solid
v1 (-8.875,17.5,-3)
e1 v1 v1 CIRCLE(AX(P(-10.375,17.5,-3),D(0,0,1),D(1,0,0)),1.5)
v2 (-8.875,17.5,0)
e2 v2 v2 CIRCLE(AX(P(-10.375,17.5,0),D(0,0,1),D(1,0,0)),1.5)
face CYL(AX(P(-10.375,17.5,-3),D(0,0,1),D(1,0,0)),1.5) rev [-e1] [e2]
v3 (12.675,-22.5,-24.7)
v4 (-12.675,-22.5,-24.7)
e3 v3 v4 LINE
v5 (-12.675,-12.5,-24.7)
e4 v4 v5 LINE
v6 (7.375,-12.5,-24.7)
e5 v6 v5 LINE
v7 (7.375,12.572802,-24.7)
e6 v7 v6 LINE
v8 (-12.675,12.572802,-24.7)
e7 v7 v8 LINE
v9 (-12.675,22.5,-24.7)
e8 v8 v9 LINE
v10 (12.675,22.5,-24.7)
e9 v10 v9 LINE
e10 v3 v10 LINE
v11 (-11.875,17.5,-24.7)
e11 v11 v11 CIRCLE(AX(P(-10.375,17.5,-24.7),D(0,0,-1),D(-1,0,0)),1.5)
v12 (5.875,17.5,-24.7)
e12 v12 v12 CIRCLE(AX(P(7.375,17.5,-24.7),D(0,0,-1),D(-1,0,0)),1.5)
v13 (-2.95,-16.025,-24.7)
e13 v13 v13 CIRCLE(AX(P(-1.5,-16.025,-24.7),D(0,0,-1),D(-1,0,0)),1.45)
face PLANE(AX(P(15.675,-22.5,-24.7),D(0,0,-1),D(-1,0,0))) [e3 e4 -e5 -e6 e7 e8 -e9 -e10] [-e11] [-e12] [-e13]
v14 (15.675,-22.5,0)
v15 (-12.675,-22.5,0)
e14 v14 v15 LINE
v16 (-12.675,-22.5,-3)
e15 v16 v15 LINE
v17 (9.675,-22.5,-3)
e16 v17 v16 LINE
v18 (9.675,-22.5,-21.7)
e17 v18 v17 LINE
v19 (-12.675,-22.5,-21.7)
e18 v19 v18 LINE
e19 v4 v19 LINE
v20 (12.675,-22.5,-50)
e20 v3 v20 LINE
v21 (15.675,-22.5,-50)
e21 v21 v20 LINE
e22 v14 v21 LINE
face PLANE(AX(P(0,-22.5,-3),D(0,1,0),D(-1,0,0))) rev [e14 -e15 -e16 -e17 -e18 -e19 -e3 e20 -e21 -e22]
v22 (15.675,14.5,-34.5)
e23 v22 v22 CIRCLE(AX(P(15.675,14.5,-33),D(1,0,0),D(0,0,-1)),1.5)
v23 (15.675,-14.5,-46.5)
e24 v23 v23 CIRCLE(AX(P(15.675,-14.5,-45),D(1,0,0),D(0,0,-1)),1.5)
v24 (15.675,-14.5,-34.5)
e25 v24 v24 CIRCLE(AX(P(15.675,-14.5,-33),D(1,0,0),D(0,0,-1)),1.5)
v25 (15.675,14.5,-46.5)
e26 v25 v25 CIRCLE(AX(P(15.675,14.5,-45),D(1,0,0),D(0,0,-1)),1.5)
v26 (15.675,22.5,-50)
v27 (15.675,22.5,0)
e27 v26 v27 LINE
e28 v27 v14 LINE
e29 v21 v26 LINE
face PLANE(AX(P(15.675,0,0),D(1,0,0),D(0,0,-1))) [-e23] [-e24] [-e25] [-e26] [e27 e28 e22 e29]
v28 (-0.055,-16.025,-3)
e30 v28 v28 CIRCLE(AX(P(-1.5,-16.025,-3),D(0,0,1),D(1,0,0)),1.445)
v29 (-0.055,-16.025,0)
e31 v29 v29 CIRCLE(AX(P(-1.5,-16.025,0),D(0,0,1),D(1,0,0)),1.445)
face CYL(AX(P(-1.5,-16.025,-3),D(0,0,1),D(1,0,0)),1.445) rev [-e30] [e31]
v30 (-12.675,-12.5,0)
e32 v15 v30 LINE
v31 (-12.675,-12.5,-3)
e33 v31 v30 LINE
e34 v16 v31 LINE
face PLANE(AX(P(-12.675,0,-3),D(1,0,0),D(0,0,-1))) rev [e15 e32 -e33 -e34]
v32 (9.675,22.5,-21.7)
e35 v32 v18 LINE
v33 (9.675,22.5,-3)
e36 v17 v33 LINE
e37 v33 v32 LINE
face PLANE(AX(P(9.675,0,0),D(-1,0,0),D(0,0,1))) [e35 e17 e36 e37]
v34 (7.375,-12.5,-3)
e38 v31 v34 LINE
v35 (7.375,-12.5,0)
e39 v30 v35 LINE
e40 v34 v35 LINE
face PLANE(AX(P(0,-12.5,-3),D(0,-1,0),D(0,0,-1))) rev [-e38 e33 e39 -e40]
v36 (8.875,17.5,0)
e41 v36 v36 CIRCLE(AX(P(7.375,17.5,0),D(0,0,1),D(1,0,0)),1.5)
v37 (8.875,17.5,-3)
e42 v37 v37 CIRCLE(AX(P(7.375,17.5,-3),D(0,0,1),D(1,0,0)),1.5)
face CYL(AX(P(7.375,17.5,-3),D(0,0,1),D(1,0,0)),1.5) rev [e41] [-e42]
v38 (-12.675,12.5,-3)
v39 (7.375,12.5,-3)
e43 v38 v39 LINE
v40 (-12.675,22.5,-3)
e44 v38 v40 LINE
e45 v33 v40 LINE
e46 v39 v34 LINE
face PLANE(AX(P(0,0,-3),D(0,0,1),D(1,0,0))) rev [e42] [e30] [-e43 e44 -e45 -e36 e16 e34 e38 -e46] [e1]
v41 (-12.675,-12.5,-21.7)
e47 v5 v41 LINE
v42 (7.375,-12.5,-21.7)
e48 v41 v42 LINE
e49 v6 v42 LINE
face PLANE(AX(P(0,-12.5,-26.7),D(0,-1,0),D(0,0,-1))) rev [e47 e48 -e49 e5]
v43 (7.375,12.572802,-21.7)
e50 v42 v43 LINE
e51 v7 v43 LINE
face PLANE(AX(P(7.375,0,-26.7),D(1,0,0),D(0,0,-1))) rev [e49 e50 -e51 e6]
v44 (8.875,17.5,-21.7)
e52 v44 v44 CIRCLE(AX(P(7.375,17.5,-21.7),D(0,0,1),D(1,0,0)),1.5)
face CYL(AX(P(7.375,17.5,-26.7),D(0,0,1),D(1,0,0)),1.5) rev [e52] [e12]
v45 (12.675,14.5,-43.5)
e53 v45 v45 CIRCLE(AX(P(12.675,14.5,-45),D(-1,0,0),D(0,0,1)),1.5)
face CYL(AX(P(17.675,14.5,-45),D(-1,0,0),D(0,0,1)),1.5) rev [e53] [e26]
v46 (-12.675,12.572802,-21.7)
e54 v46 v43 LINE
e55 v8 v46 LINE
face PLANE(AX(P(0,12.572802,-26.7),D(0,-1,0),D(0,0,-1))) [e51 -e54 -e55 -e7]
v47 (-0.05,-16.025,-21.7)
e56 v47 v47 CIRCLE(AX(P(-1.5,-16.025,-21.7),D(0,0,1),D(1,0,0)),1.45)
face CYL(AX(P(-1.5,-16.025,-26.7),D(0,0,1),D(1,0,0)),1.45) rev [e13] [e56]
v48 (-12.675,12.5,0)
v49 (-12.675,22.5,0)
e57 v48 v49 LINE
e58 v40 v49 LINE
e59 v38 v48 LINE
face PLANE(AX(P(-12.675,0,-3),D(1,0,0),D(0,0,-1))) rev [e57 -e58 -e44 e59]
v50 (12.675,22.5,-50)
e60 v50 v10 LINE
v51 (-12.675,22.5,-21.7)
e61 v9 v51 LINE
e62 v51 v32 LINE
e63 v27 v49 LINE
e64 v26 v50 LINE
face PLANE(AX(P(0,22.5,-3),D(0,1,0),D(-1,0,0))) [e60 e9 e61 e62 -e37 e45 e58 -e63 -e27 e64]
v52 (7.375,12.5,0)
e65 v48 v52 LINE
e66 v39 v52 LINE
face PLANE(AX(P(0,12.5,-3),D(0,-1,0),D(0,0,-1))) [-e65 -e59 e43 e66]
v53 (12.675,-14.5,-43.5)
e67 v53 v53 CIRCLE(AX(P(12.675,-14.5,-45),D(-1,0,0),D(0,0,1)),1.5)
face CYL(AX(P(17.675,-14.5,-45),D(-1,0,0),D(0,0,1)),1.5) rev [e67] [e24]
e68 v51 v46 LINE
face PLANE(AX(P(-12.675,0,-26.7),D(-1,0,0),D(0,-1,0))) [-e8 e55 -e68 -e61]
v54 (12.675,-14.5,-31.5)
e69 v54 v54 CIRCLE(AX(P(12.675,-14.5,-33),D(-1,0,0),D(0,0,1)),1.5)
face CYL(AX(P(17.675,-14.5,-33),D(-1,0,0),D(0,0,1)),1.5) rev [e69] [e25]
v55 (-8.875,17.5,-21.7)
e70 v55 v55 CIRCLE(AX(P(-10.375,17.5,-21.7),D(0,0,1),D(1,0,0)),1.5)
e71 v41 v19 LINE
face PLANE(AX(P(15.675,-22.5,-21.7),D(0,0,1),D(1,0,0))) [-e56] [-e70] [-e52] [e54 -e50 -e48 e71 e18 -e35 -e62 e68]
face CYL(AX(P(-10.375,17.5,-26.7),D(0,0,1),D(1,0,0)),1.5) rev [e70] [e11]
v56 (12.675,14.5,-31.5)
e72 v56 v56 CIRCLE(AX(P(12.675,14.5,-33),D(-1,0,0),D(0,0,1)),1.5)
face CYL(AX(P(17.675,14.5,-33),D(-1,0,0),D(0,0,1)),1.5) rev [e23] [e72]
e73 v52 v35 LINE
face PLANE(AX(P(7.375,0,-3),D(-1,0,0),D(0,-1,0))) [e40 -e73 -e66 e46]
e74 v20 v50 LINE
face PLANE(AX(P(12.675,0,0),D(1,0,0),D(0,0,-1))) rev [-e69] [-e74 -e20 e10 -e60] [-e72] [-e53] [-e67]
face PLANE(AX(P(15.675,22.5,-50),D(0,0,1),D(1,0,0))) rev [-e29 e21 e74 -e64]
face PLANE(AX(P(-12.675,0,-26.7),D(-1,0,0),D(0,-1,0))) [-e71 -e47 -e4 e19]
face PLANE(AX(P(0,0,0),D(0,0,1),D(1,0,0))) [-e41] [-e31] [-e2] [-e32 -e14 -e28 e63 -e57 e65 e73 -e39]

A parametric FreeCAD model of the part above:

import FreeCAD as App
import Part
import Sketcher

V = App.Vector
Q = App.Units.Quantity


def add_polygon(sketch, points):
    """Adds a closed chain of lines whose ends are joined by coincident constraints."""
    first, n = sketch.GeometryCount, len(points)
    for a, b in zip(points, points[1:] + points[:1]):
        sketch.addGeometry(Part.LineSegment(App.Vector(*a, 0), App.Vector(*b, 0)), False)
    for i in range(n):
        sketch.addConstraint(Sketcher.Constraint("Coincident", first + i, 2, first + (i + 1) % n, 1))

doc = App.newDocument("Part")
body = doc.addObject("PartDesign::Body", "Body")

sketch1 = doc.addObject("Sketcher::SketchObject", "Sketch")
body.addObject(sketch1)
sketch1.AttachmentSupport = (doc.XY_Plane, [""])
sketch1.MapMode = "FlatFace"
add_polygon(sketch1, [(7.4, 12.5), (7.4, -12.5), (-12.7, -12.5), (-12.7, -22.5), (12.7, -22.5), (12.7, 22.5), (-12.7, 22.5), (-12.7, 12.5)])
sketch1.addGeometry(Part.Circle(V(-1.5, -16, 0), V(0, 0, 1), 1.4), False)
sketch1.addGeometry(Part.Circle(V(7.4, 17.5, 0), V(0, 0, 1), 1.5), False)
sketch1.addGeometry(Part.Circle(V(-10.4, 17.5, 0), V(0, 0, 1), 1.5), False)
sketch1.addConstraint([
    Sketcher.Constraint("Vertical", 0),
    Sketcher.Constraint("Horizontal", 1),
    Sketcher.Constraint("Vertical", 2),
    Sketcher.Constraint("Horizontal", 3),
    Sketcher.Constraint("Vertical", 4),
    Sketcher.Constraint("Horizontal", 5),
    Sketcher.Constraint("Vertical", 6),
    Sketcher.Constraint("Horizontal", 7),
    Sketcher.Constraint("Equal", 9, 10),
    Sketcher.Constraint("Symmetric", 2, 2, 4, 2, -1, 1),
    Sketcher.Constraint("Symmetric", 1, 2, 6, 2, -1),
    Sketcher.Constraint("Horizontal", 9, 3, 10, 3),
    Sketcher.Constraint("Vertical", 9, 3, 0, 2),
    Sketcher.Constraint("Diameter", 9, Q("3 mm")),
    Sketcher.Constraint("Diameter", 8, Q("2.89 mm")),
    Sketcher.Constraint("DistanceY", 0, 2, 0, 1, Q("25 mm")),
    Sketcher.Constraint("DistanceY", 2, 2, 2, 1, Q("10 mm")),
    Sketcher.Constraint("DistanceY", 0, 2, 9, 3, Q("30 mm")),
    Sketcher.Constraint("DistanceX", 1, 2, 1, 1, Q("20.05 mm")),
    Sketcher.Constraint("DistanceX", 3, 1, 3, 2, Q("25.35 mm")),
    Sketcher.Constraint("DistanceX", 8, 3, -1, 1, Q("1.5 mm")),
    Sketcher.Constraint("DistanceX", 1, 2, 10, 3, Q("2.3 mm")),
    Sketcher.Constraint("DistanceY", 8, 3, -1, 1, Q("16.025 mm")),
])
pad1 = doc.addObject("PartDesign::Pad", "Pad")
body.addObject(pad1)
pad1.Profile = sketch1
pad1.Length = 3
pad1.Reversed = True

sketch2 = doc.addObject("Sketcher::SketchObject", "Sketch001")
body.addObject(sketch2)
sketch2.AttachmentSupport = (doc.YZ_Plane, [""])
sketch2.MapMode = "FlatFace"
sketch2.AttachmentOffset = App.Placement(V(0, 0, 12.675), App.Rotation())
add_polygon(sketch2, [(22, 0), (-22, 0), (-22, -50), (22, -50)])
sketch2.addConstraint([
    Sketcher.Constraint("Horizontal", 0),
    Sketcher.Constraint("Vertical", 1),
    Sketcher.Constraint("Horizontal", 2),
    Sketcher.Constraint("Vertical", 3),
    Sketcher.Constraint("Symmetric", 0, 2, 3, 2, -1, 1),
    Sketcher.Constraint("DistanceX", 0, 2, 0, 1, Q("45 mm")),
    Sketcher.Constraint("DistanceY", 1, 2, 1, 1, Q("50 mm")),
])
pad2 = doc.addObject("PartDesign::Pad", "Pad001")
body.addObject(pad2)
pad2.Profile = sketch2
pad2.Length = 3

sketch3 = doc.addObject("Sketcher::SketchObject", "Sketch002")
body.addObject(sketch3)
sketch3.AttachmentSupport = (doc.XZ_Plane, [""])
sketch3.MapMode = "FlatFace"
sketch3.AttachmentOffset = App.Placement(V(0, 0, -22.5), App.Rotation())
add_polygon(sketch3, [(-22.7, -24.7), (-22.7, -21.7), (15.7, -21.7), (15.7, -24.7)])
sketch3.addConstraint([
    Sketcher.Constraint("Vertical", 0),
    Sketcher.Constraint("Horizontal", 1),
    Sketcher.Constraint("Vertical", 2),
    Sketcher.Constraint("Horizontal", 3),
    Sketcher.Constraint("DistanceY", 0, 1, 0, 2, Q("3 mm")),
    Sketcher.Constraint("DistanceX", 1, 1, 1, 2, Q("38.35 mm")),
    Sketcher.Constraint("DistanceY", 0, 2, -1, 1, Q("21.7 mm")),
    Sketcher.Constraint("DistanceX", 0, 2, -1, 1, Q("22.675 mm")),
])
pad3 = doc.addObject("PartDesign::Pad", "Pad002")
body.addObject(pad3)
pad3.Profile = sketch3
pad3.Length = 45

sketch4 = doc.addObject("Sketcher::SketchObject", "Sketch003")
body.addObject(sketch4)
sketch4.AttachmentSupport = (doc.XY_Plane, [""])
sketch4.MapMode = "FlatFace"
sketch4.AttachmentOffset = App.Placement(V(0, 0, -21.7), App.Rotation())
add_polygon(sketch4, [(-13, 13), (-13, 22), (-23, 22), (-23, -22), (-13, -22), (-13, -12), (7, -12), (7, 13)])
sketch4.addConstraint([
    Sketcher.Constraint("Vertical", 0),
    Sketcher.Constraint("Horizontal", 1),
    Sketcher.Constraint("Vertical", 2),
    Sketcher.Constraint("Horizontal", 3),
    Sketcher.Constraint("Vertical", 4),
    Sketcher.Constraint("Horizontal", 5),
    Sketcher.Constraint("Vertical", 6),
    Sketcher.Constraint("Horizontal", 7),
    Sketcher.Constraint("Symmetric", 0, 2, 3, 2, -1),
    Sketcher.Constraint("Equal", 3, 4),
    Sketcher.Constraint("DistanceX", 1, 2, 1, 1, Q("10 mm")),
    Sketcher.Constraint("DistanceY", 2, 2, 2, 1, Q("45 mm")),
    Sketcher.Constraint("DistanceX", 5, 1, 5, 2, Q("20.05 mm")),
    Sketcher.Constraint("DistanceX", 0, 2, -1, 1, Q("12.675 mm")),
    Sketcher.Constraint("DistanceY", 0, 1, 0, 2, Q("9.927198 mm")),
])
pocket1 = doc.addObject("PartDesign::Pocket", "Pocket")
body.addObject(pocket1)
pocket1.Profile = sketch4
pocket1.Length = 5

sketch5 = doc.addObject("Sketcher::SketchObject", "Sketch004")
body.addObject(sketch5)
sketch5.AttachmentSupport = (doc.XY_Plane, [""])
sketch5.MapMode = "FlatFace"
sketch5.AttachmentOffset = App.Placement(V(0, 0, -21.7), App.Rotation())
sketch5.addGeometry([
    Part.Circle(V(-10.4, 17.5, 0), V(0, 0, 1), 1.5),
    Part.Circle(V(7.4, 17.5, 0), V(0, 0, 1), 1.5),
    Part.Circle(V(-1.5, -16, 0), V(0, 0, 1), 1.4),
], False)
sketch5.addConstraint([
    Sketcher.Constraint("Equal", 0, 1),
    Sketcher.Constraint("Horizontal", 0, 3, 1, 3),
    Sketcher.Constraint("Diameter", 0, Q("3 mm")),
    Sketcher.Constraint("Diameter", 2, Q("2.9 mm")),
    Sketcher.Constraint("DistanceY", -1, 1, 0, 3, Q("17.5 mm")),
    Sketcher.Constraint("DistanceX", 2, 3, -1, 1, Q("1.5 mm")),
    Sketcher.Constraint("DistanceX", 0, 3, 1, 3, Q("17.75 mm")),
    Sketcher.Constraint("DistanceX", 0, 3, -1, 1, Q("10.375 mm")),
    Sketcher.Constraint("DistanceY", 2, 3, -1, 1, Q("16.025 mm")),
])
pocket2 = doc.addObject("PartDesign::Pocket", "Pocket001")
body.addObject(pocket2)
pocket2.Profile = sketch5
pocket2.Length = 5

sketch6 = doc.addObject("Sketcher::SketchObject", "Sketch005")
body.addObject(sketch6)
sketch6.AttachmentSupport = (doc.YZ_Plane, [""])
sketch6.MapMode = "FlatFace"
sketch6.AttachmentOffset = App.Placement(V(0, 0, 12.675), App.Rotation())
sketch6.addGeometry([
    Part.Circle(V(14.5, -33, 0), V(0, 0, 1), 1.5),
    Part.Circle(V(-14.5, -33, 0), V(0, 0, 1), 1.5),
    Part.Circle(V(14.5, -45, 0), V(0, 0, 1), 1.5),
    Part.Circle(V(-14.5, -45, 0), V(0, 0, 1), 1.5),
], False)
sketch6.addConstraint([
    Sketcher.Constraint("Equal", 0, 1),
    Sketcher.Constraint("Equal", 1, 2),
    Sketcher.Constraint("Equal", 2, 3),
    Sketcher.Constraint("Symmetric", 0, 3, 1, 3, -2),
    Sketcher.Constraint("Symmetric", 2, 3, 3, 3, -2),
    Sketcher.Constraint("Vertical", 0, 3, 2, 3),
    Sketcher.Constraint("Diameter", 0, Q("3 mm")),
    Sketcher.Constraint("DistanceY", 0, 3, -1, 1, Q("33 mm")),
    Sketcher.Constraint("DistanceY", 2, 3, -1, 1, Q("45 mm")),
    Sketcher.Constraint("DistanceX", 1, 3, 0, 3, Q("29 mm")),
])
pocket3 = doc.addObject("PartDesign::Pocket", "Pocket002")
body.addObject(pocket3)
pocket3.Profile = sketch6
pocket3.Length = 5
pocket3.Reversed = True

sketch7 = doc.addObject("Sketcher::SketchObject", "Sketch006")
body.addObject(sketch7)
sketch7.AttachmentSupport = (doc.YZ_Plane, [""])
sketch7.MapMode = "FlatFace"
sketch7.AttachmentOffset = App.Placement(V(0, 0, 12.675), App.Rotation())
add_polygon(sketch7, [(22, -22), (-22, -22), (-22, -3), (22, -3)])
sketch7.addConstraint([
    Sketcher.Constraint("Horizontal", 0),
    Sketcher.Constraint("Vertical", 1),
    Sketcher.Constraint("Horizontal", 2),
    Sketcher.Constraint("Vertical", 3),
    Sketcher.Constraint("DistanceX", 0, 2, 0, 1, Q("45 mm")),
    Sketcher.Constraint("DistanceY", 1, 1, 1, 2, Q("18.7 mm")),
    Sketcher.Constraint("DistanceY", 1, 2, -1, 1, Q("3 mm")),
    Sketcher.Constraint("DistanceX", 0, 2, -1, 1, Q("22.5 mm")),
])
pad4 = doc.addObject("PartDesign::Pad", "Pad003")
body.addObject(pad4)
pad4.Profile = sketch7
pad4.Length = 3
pad4.Reversed = True

doc.recompute()
